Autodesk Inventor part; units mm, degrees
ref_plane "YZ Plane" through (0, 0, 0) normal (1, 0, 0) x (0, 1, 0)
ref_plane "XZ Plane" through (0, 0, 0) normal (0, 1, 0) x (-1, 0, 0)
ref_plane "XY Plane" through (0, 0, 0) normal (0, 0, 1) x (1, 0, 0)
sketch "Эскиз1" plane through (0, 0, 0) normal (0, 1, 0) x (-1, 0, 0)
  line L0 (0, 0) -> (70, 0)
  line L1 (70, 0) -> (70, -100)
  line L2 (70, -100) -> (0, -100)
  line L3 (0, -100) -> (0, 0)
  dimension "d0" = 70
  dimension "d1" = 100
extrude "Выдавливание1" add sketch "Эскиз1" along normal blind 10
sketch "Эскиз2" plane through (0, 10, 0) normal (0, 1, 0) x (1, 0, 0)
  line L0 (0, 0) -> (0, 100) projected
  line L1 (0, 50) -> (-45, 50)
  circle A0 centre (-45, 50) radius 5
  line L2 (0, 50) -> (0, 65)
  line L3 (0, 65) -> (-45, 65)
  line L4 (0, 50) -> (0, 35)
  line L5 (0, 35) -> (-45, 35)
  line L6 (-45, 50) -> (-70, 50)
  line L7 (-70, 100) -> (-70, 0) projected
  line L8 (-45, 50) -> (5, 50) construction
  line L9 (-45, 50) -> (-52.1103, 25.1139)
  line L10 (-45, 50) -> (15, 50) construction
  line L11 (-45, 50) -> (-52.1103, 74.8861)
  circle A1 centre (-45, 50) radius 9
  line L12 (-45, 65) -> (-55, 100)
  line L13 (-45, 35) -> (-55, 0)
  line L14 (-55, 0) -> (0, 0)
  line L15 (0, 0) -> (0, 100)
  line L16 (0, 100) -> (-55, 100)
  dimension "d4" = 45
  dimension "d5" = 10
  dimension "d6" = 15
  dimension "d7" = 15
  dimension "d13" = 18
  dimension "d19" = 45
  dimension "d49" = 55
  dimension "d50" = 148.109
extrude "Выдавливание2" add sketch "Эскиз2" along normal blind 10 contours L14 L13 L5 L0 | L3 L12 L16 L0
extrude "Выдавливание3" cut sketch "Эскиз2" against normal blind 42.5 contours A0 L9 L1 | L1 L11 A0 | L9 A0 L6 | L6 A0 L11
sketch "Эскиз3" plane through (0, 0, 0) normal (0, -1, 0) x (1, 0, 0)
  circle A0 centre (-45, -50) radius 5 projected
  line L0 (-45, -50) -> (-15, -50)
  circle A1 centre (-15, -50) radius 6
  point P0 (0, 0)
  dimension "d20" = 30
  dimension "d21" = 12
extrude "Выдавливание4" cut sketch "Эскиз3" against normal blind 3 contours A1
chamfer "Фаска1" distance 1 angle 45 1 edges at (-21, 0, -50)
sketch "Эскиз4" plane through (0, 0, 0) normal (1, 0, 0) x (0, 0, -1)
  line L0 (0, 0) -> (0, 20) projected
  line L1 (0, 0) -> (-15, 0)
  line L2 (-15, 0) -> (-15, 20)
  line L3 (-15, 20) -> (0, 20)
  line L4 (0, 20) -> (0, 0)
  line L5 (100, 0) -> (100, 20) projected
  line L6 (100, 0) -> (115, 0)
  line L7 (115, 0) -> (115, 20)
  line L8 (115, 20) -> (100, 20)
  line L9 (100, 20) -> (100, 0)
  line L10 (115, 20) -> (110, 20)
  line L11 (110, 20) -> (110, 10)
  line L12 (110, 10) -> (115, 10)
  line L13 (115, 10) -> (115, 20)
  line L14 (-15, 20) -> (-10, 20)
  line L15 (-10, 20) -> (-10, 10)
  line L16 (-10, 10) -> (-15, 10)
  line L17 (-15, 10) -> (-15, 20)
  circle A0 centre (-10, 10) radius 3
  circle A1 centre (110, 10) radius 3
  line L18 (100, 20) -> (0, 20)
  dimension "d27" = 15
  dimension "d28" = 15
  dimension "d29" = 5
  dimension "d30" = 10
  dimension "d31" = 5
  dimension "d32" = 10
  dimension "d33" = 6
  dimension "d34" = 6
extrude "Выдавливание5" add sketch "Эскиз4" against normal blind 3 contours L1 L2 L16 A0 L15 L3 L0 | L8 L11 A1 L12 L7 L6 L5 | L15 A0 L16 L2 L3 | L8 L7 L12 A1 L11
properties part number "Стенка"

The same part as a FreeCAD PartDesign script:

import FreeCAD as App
import Part
import Sketcher


def edges_at(feature, points):
    """Names of the edges that pass closest to the given points."""
    edges = feature.Shape.Edges
    near = lambda p: min(range(len(edges)), key=lambda i: edges[i].distToShape(Part.Vertex(*p))[0])
    return sorted({f"Edge{near(p) + 1}" for p in points})


def add_polygon(sketch, points):
    """Adds a closed chain of lines whose ends are joined by coincident constraints."""
    first, n = sketch.GeometryCount, len(points)
    for a, b in zip(points, points[1:] + points[:1]):
        sketch.addGeometry(Part.LineSegment(App.Vector(*a, 0), App.Vector(*b, 0)), False)
    for i in range(n):
        sketch.addConstraint(Sketcher.Constraint("Coincident", first + i, 2, first + (i + 1) % n, 1))

doc = App.newDocument("Part")
body = doc.addObject("PartDesign::Body", "Body")

# Sketch on XZ plane
sketch1 = doc.addObject("Sketcher::SketchObject", "Sketch")
body.addObject(sketch1)
sketch1.AttachmentSupport = (doc.XZ_Plane, [""])
sketch1.MapMode = "FlatFace"
add_polygon(sketch1, [(-70, 0), (0, 0), (0, -100), (-70, -100)])  # lines 0-3
sketch1.addConstraint([
    Sketcher.Constraint("Horizontal", 0),
    Sketcher.Constraint("Vertical", 1),
    Sketcher.Constraint("Horizontal", 2),
    Sketcher.Constraint("Vertical", 3),
    Sketcher.Constraint("Coincident", 0, 2, -1, 1),
    Sketcher.Constraint("DistanceX", 0, 1, 0, 2, 70.0),
    Sketcher.Constraint("DistanceY", 1, 2, 1, 1, 100.0),
])
pad1 = doc.addObject("PartDesign::Pad", "Pad")
body.addObject(pad1)
pad1.Profile = sketch1
pad1.Length = 10
pad1.Reversed = True

# Sketch on XZ plane
sketch2 = doc.addObject("Sketcher::SketchObject", "Sketch001")
body.addObject(sketch2)
sketch2.AttachmentSupport = (doc.XZ_Plane, [""])
sketch2.MapMode = "FlatFace"
sketch2.AttachmentOffset = App.Placement(App.Vector(0, 0, -10), App.Rotation())
add_polygon(sketch2, [(-55, 0), (0, 0), (0, -35), (-45, -35)])  # lines 0-3
add_polygon(sketch2, [(-45, -65), (0, -65), (0, -100), (-55, -100)])  # lines 4-7
sketch2.addConstraint([
    Sketcher.Constraint("Horizontal", 0),
    Sketcher.Constraint("Vertical", 1),
    Sketcher.Constraint("Horizontal", 2),
    Sketcher.Constraint("Horizontal", 4),
    Sketcher.Constraint("Vertical", 5),
    Sketcher.Constraint("Horizontal", 6),
    Sketcher.Constraint("Coincident", 0, 2, -1, 1),
    Sketcher.Constraint("PointOnObject", 4, 2, -2),
    Sketcher.Constraint("Vertical", 3, 2, 6, 2),
    Sketcher.Constraint("Vertical", 2, 2, 7, 2),
    Sketcher.Constraint("Equal", 1, 5),
    Sketcher.Constraint("DistanceX", 0, 1, 0, 2, 55.0),
    Sketcher.Constraint("DistanceX", 2, 2, 2, 1, 45.0),
    Sketcher.Constraint("DistanceY", 1, 2, 1, 1, 35.0),
    Sketcher.Constraint("DistanceY", 4, 2, -1, 1, 65.0),
])
pad2 = doc.addObject("PartDesign::Pad", "Pad001")
body.addObject(pad2)
pad2.Profile = sketch2
pad2.Length = 10
pad2.Reversed = True

# Sketch on XZ plane
sketch3 = doc.addObject("Sketcher::SketchObject", "Sketch002")
body.addObject(sketch3)
sketch3.AttachmentSupport = (doc.XZ_Plane, [""])
sketch3.MapMode = "FlatFace"
sketch3.AttachmentOffset = App.Placement(App.Vector(0, 0, -10), App.Rotation())
sketch3.addGeometry(Part.Circle(App.Vector(-45, -50, 0), App.Vector(0, 0, 1), 5), False)
sketch3.addConstraint([
    Sketcher.Constraint("Diameter", 0, 10.0),
    Sketcher.Constraint("DistanceX", 0, 3, -1, 1, 45.0),
    Sketcher.Constraint("DistanceY", 0, 3, -1, 1, 50.0),
])
pocket1 = doc.addObject("PartDesign::Pocket", "Pocket")
body.addObject(pocket1)
pocket1.Profile = sketch3
pocket1.Length = 42.5
pocket1.Reversed = True

# Sketch on XZ plane
sketch4 = doc.addObject("Sketcher::SketchObject", "Sketch003")
body.addObject(sketch4)
sketch4.AttachmentSupport = (doc.XZ_Plane, [""])
sketch4.MapMode = "FlatFace"
sketch4.addGeometry(Part.Circle(App.Vector(-15, -50, 0), App.Vector(0, 0, 1), 6), False)
sketch4.addConstraint([
    Sketcher.Constraint("Diameter", 0, 12.0),
    Sketcher.Constraint("DistanceX", 0, 3, -1, 1, 15.0),
    Sketcher.Constraint("DistanceY", 0, 3, -1, 1, 50.0),
])
pocket2 = doc.addObject("PartDesign::Pocket", "Pocket001")
body.addObject(pocket2)
pocket2.Profile = sketch4
pocket2.Length = 3
doc.recompute()

chamfer = doc.addObject("PartDesign::Chamfer", "Chamfer")
body.addObject(chamfer)
chamfer.Base = (pocket2, edges_at(pocket2, [(-21, 0, -50)]))
chamfer.Size = 1

# Sketch on YZ plane
sketch5 = doc.addObject("Sketcher::SketchObject", "Sketch004")
body.addObject(sketch5)
sketch5.AttachmentSupport = (doc.YZ_Plane, [""])
sketch5.MapMode = "FlatFace"
add_polygon(sketch5, [(0, 15), (0, 0), (20, 0), (20, 15)])  # lines 0-3
sketch5.addGeometry(Part.Circle(App.Vector(10, 10, 0), App.Vector(0, 0, 1), 3), False)  # 4
add_polygon(sketch5, [(20, -100), (0, -100), (0, -115), (20, -115)])  # lines 5-8
sketch5.addGeometry(Part.Circle(App.Vector(10, -110, 0), App.Vector(0, 0, 1), 3), False)  # 9
sketch5.addConstraint([
    Sketcher.Constraint("Vertical", 0),
    Sketcher.Constraint("Horizontal", 1),
    Sketcher.Constraint("Vertical", 2),
    Sketcher.Constraint("Horizontal", 3),
    Sketcher.Constraint("Horizontal", 5),
    Sketcher.Constraint("Vertical", 6),
    Sketcher.Constraint("Horizontal", 7),
    Sketcher.Constraint("Vertical", 8),
    Sketcher.Constraint("Coincident", 0, 2, -1, 1),
    Sketcher.Constraint("Equal", 4, 9),
    Sketcher.Constraint("PointOnObject", 5, 2, -2),
    Sketcher.Constraint("Vertical", 4, 3, 9, 3),
    Sketcher.Constraint("Vertical", 2, 2, 7, 2),
    Sketcher.Constraint("Equal", 2, 6),
    Sketcher.Constraint("Diameter", 4, 6.0),
    Sketcher.Constraint("DistanceY", 0, 2, 0, 1, 15.0),
    Sketcher.Constraint("DistanceX", -1, 1, 4, 3, 10.0),
    Sketcher.Constraint("DistanceY", -1, 1, 4, 3, 10.0),
    Sketcher.Constraint("DistanceX", 4, 3, 1, 2, 10.0),
    Sketcher.Constraint("DistanceY", 9, 3, 5, 2, 10.0),
    Sketcher.Constraint("DistanceY", 9, 3, -1, 1, 110.0),
])
pad3 = doc.addObject("PartDesign::Pad", "Pad002")
body.addObject(pad3)
pad3.Profile = sketch5
pad3.Length = 3
pad3.Reversed = True

doc.recompute()
